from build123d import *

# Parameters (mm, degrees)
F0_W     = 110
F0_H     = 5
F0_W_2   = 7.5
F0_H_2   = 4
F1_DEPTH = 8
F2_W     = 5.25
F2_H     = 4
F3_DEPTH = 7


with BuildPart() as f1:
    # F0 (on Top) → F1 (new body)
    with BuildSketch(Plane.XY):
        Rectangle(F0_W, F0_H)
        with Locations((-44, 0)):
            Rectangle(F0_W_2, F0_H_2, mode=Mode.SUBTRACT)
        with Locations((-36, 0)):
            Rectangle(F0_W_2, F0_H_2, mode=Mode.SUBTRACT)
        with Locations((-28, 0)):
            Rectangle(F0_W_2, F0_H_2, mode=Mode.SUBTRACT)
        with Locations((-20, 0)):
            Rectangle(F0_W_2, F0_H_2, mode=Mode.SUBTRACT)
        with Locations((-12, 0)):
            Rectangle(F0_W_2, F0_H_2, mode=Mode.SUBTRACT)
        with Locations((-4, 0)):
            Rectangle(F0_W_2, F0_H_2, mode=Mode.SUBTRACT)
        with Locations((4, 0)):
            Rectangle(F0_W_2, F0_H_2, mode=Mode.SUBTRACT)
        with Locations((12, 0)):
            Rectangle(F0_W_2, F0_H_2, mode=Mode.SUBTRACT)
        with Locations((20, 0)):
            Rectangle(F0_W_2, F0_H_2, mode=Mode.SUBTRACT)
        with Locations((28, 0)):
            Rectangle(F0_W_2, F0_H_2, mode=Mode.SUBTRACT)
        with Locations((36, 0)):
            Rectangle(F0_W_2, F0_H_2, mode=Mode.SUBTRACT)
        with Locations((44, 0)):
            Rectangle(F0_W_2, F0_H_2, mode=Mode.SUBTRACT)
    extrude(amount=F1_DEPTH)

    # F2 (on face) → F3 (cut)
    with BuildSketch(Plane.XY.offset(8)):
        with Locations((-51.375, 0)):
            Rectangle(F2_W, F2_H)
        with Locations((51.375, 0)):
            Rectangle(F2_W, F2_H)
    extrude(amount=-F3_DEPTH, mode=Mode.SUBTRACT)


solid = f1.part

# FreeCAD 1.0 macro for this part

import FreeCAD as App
import Part
import Sketcher

doc = App.newDocument("Part")
body = doc.addObject("PartDesign::Body", "Body")

# Sketch on XY plane
sketch1 = body.newObject("Sketcher::SketchObject", "Sketch")
sketch1.AttachmentSupport = (doc.getObject("XY_Plane"), [""])
sketch1.MapMode = "FlatFace"
sketch1.addGeometry([
    Part.LineSegment(App.Vector(-55, 2.5, 0), App.Vector(-55, -2.5, 0)),  # 0
    Part.LineSegment(App.Vector(-55, -2.5, 0), App.Vector(55, -2.5, 0)),  # 1
    Part.LineSegment(App.Vector(55, -2.5, 0), App.Vector(55, 2.5, 0)),  # 2
    Part.LineSegment(App.Vector(55, 2.5, 0), App.Vector(-55, 2.5, 0)),  # 3
    Part.LineSegment(App.Vector(-40.25, -2, 0), App.Vector(-47.75, -2, 0)),  # 4
    Part.LineSegment(App.Vector(-47.75, -2, 0), App.Vector(-47.75, 2, 0)),  # 5
    Part.LineSegment(App.Vector(-47.75, 2, 0), App.Vector(-40.25, 2, 0)),  # 6
    Part.LineSegment(App.Vector(-40.25, 2, 0), App.Vector(-40.25, -2, 0)),  # 7
    Part.LineSegment(App.Vector(-32.25, -2, 0), App.Vector(-39.75, -2, 0)),  # 8
    Part.LineSegment(App.Vector(-39.75, -2, 0), App.Vector(-39.75, 2, 0)),  # 9
    Part.LineSegment(App.Vector(-39.75, 2, 0), App.Vector(-32.25, 2, 0)),  # 10
    Part.LineSegment(App.Vector(-32.25, 2, 0), App.Vector(-32.25, -2, 0)),  # 11
    Part.LineSegment(App.Vector(-24.25, -2, 0), App.Vector(-31.75, -2, 0)),  # 12
    Part.LineSegment(App.Vector(-31.75, -2, 0), App.Vector(-31.75, 2, 0)),  # 13
    Part.LineSegment(App.Vector(-31.75, 2, 0), App.Vector(-24.25, 2, 0)),  # 14
    Part.LineSegment(App.Vector(-24.25, 2, 0), App.Vector(-24.25, -2, 0)),  # 15
    Part.LineSegment(App.Vector(-16.25, -2, 0), App.Vector(-23.75, -2, 0)),  # 16
    Part.LineSegment(App.Vector(-23.75, -2, 0), App.Vector(-23.75, 2, 0)),  # 17
    Part.LineSegment(App.Vector(-23.75, 2, 0), App.Vector(-16.25, 2, 0)),  # 18
    Part.LineSegment(App.Vector(-16.25, 2, 0), App.Vector(-16.25, -2, 0)),  # 19
    Part.LineSegment(App.Vector(-8.25, -2, 0), App.Vector(-15.75, -2, 0)),  # 20
    Part.LineSegment(App.Vector(-15.75, -2, 0), App.Vector(-15.75, 2, 0)),  # 21
    Part.LineSegment(App.Vector(-15.75, 2, 0), App.Vector(-8.25, 2, 0)),  # 22
    Part.LineSegment(App.Vector(-8.25, 2, 0), App.Vector(-8.25, -2, 0)),  # 23
    Part.LineSegment(App.Vector(-0.25, -2, 0), App.Vector(-7.75, -2, 0)),  # 24
    Part.LineSegment(App.Vector(-7.75, -2, 0), App.Vector(-7.75, 2, 0)),  # 25
    Part.LineSegment(App.Vector(-7.75, 2, 0), App.Vector(-0.25, 2, 0)),  # 26
    Part.LineSegment(App.Vector(-0.25, 2, 0), App.Vector(-0.25, -2, 0)),  # 27
    Part.LineSegment(App.Vector(7.75, -2, 0), App.Vector(0.25, -2, 0)),  # 28
    Part.LineSegment(App.Vector(0.25, -2, 0), App.Vector(0.25, 2, 0)),  # 29
    Part.LineSegment(App.Vector(0.25, 2, 0), App.Vector(7.75, 2, 0)),  # 30
    Part.LineSegment(App.Vector(7.75, 2, 0), App.Vector(7.75, -2, 0)),  # 31
    Part.LineSegment(App.Vector(15.75, -2, 0), App.Vector(8.25, -2, 0)),  # 32
    Part.LineSegment(App.Vector(8.25, -2, 0), App.Vector(8.25, 2, 0)),  # 33
    Part.LineSegment(App.Vector(8.25, 2, 0), App.Vector(15.75, 2, 0)),  # 34
    Part.LineSegment(App.Vector(15.75, 2, 0), App.Vector(15.75, -2, 0)),  # 35
    Part.LineSegment(App.Vector(23.75, -2, 0), App.Vector(16.25, -2, 0)),  # 36
    Part.LineSegment(App.Vector(16.25, -2, 0), App.Vector(16.25, 2, 0)),  # 37
    Part.LineSegment(App.Vector(16.25, 2, 0), App.Vector(23.75, 2, 0)),  # 38
    Part.LineSegment(App.Vector(23.75, 2, 0), App.Vector(23.75, -2, 0)),  # 39
    Part.LineSegment(App.Vector(31.75, -2, 0), App.Vector(24.25, -2, 0)),  # 40
    Part.LineSegment(App.Vector(24.25, -2, 0), App.Vector(24.25, 2, 0)),  # 41
    Part.LineSegment(App.Vector(24.25, 2, 0), App.Vector(31.75, 2, 0)),  # 42
    Part.LineSegment(App.Vector(31.75, 2, 0), App.Vector(31.75, -2, 0)),  # 43
    Part.LineSegment(App.Vector(39.75, -2, 0), App.Vector(32.25, -2, 0)),  # 44
    Part.LineSegment(App.Vector(32.25, -2, 0), App.Vector(32.25, 2, 0)),  # 45
    Part.LineSegment(App.Vector(32.25, 2, 0), App.Vector(39.75, 2, 0)),  # 46
    Part.LineSegment(App.Vector(39.75, 2, 0), App.Vector(39.75, -2, 0)),  # 47
    Part.LineSegment(App.Vector(47.75, -2, 0), App.Vector(40.25, -2, 0)),  # 48
    Part.LineSegment(App.Vector(40.25, -2, 0), App.Vector(40.25, 2, 0)),  # 49
    Part.LineSegment(App.Vector(40.25, 2, 0), App.Vector(47.75, 2, 0)),  # 50
    Part.LineSegment(App.Vector(47.75, 2, 0), App.Vector(47.75, -2, 0)),  # 51
], False)
sketch1.addConstraint([
    Sketcher.Constraint("Coincident", 0, 2, 1, 1),
    Sketcher.Constraint("Coincident", 1, 2, 2, 1),
    Sketcher.Constraint("Coincident", 2, 2, 3, 1),
    Sketcher.Constraint("Coincident", 3, 2, 0, 1),
    Sketcher.Constraint("Coincident", 4, 2, 5, 1),
    Sketcher.Constraint("Coincident", 5, 2, 6, 1),
    Sketcher.Constraint("Coincident", 6, 2, 7, 1),
    Sketcher.Constraint("Coincident", 7, 2, 4, 1),
    Sketcher.Constraint("Coincident", 8, 2, 9, 1),
    Sketcher.Constraint("Coincident", 9, 2, 10, 1),
    Sketcher.Constraint("Coincident", 10, 2, 11, 1),
    Sketcher.Constraint("Coincident", 11, 2, 8, 1),
    Sketcher.Constraint("Coincident", 12, 2, 13, 1),
    Sketcher.Constraint("Coincident", 13, 2, 14, 1),
    Sketcher.Constraint("Coincident", 14, 2, 15, 1),
    Sketcher.Constraint("Coincident", 15, 2, 12, 1),
    Sketcher.Constraint("Coincident", 16, 2, 17, 1),
    Sketcher.Constraint("Coincident", 17, 2, 18, 1),
    Sketcher.Constraint("Coincident", 18, 2, 19, 1),
    Sketcher.Constraint("Coincident", 19, 2, 16, 1),
    Sketcher.Constraint("Coincident", 20, 2, 21, 1),
    Sketcher.Constraint("Coincident", 21, 2, 22, 1),
    Sketcher.Constraint("Coincident", 22, 2, 23, 1),
    Sketcher.Constraint("Coincident", 23, 2, 20, 1),
    Sketcher.Constraint("Coincident", 24, 2, 25, 1),
    Sketcher.Constraint("Coincident", 25, 2, 26, 1),
    Sketcher.Constraint("Coincident", 26, 2, 27, 1),
    Sketcher.Constraint("Coincident", 27, 2, 24, 1),
    Sketcher.Constraint("Coincident", 28, 2, 29, 1),
    Sketcher.Constraint("Coincident", 29, 2, 30, 1),
    Sketcher.Constraint("Coincident", 30, 2, 31, 1),
    Sketcher.Constraint("Coincident", 31, 2, 28, 1),
    Sketcher.Constraint("Coincident", 32, 2, 33, 1),
    Sketcher.Constraint("Coincident", 33, 2, 34, 1),
    Sketcher.Constraint("Coincident", 34, 2, 35, 1),
    Sketcher.Constraint("Coincident", 35, 2, 32, 1),
    Sketcher.Constraint("Coincident", 36, 2, 37, 1),
    Sketcher.Constraint("Coincident", 37, 2, 38, 1),
    Sketcher.Constraint("Coincident", 38, 2, 39, 1),
    Sketcher.Constraint("Coincident", 39, 2, 36, 1),
    Sketcher.Constraint("Coincident", 40, 2, 41, 1),
    Sketcher.Constraint("Coincident", 41, 2, 42, 1),
    Sketcher.Constraint("Coincident", 42, 2, 43, 1),
    Sketcher.Constraint("Coincident", 43, 2, 40, 1),
    Sketcher.Constraint("Coincident", 44, 2, 45, 1),
    Sketcher.Constraint("Coincident", 45, 2, 46, 1),
    Sketcher.Constraint("Coincident", 46, 2, 47, 1),
    Sketcher.Constraint("Coincident", 47, 2, 44, 1),
    Sketcher.Constraint("Coincident", 48, 2, 49, 1),
    Sketcher.Constraint("Coincident", 49, 2, 50, 1),
    Sketcher.Constraint("Coincident", 50, 2, 51, 1),
    Sketcher.Constraint("Coincident", 51, 2, 48, 1),
    Sketcher.Constraint("Vertical", 0),
    Sketcher.Constraint("Horizontal", 1),
    Sketcher.Constraint("Vertical", 2),
    Sketcher.Constraint("Horizontal", 3),
    Sketcher.Constraint("Horizontal", 4),
    Sketcher.Constraint("Vertical", 5),
    Sketcher.Constraint("Horizontal", 6),
    Sketcher.Constraint("Vertical", 7),
    Sketcher.Constraint("Horizontal", 8),
    Sketcher.Constraint("Vertical", 9),
    Sketcher.Constraint("Horizontal", 10),
    Sketcher.Constraint("Vertical", 11),
    Sketcher.Constraint("Horizontal", 12),
    Sketcher.Constraint("Vertical", 13),
    Sketcher.Constraint("Horizontal", 14),
    Sketcher.Constraint("Vertical", 15),
    Sketcher.Constraint("Horizontal", 16),
    Sketcher.Constraint("Vertical", 17),
    Sketcher.Constraint("Horizontal", 18),
    Sketcher.Constraint("Vertical", 19),
    Sketcher.Constraint("Horizontal", 20),
    Sketcher.Constraint("Vertical", 21),
    Sketcher.Constraint("Horizontal", 22),
    Sketcher.Constraint("Vertical", 23),
    Sketcher.Constraint("Horizontal", 24),
    Sketcher.Constraint("Vertical", 25),
    Sketcher.Constraint("Horizontal", 26),
    Sketcher.Constraint("Vertical", 27),
    Sketcher.Constraint("Horizontal", 28),
    Sketcher.Constraint("Vertical", 29),
    Sketcher.Constraint("Horizontal", 30),
    Sketcher.Constraint("Vertical", 31),
    Sketcher.Constraint("Horizontal", 32),
    Sketcher.Constraint("Vertical", 33),
    Sketcher.Constraint("Horizontal", 34),
    Sketcher.Constraint("Vertical", 35),
    Sketcher.Constraint("Horizontal", 36),
    Sketcher.Constraint("Vertical", 37),
    Sketcher.Constraint("Horizontal", 38),
    Sketcher.Constraint("Vertical", 39),
    Sketcher.Constraint("Horizontal", 40),
    Sketcher.Constraint("Vertical", 41),
    Sketcher.Constraint("Horizontal", 42),
    Sketcher.Constraint("Vertical", 43),
    Sketcher.Constraint("Horizontal", 44),
    Sketcher.Constraint("Vertical", 45),
    Sketcher.Constraint("Horizontal", 46),
    Sketcher.Constraint("Vertical", 47),
    Sketcher.Constraint("Horizontal", 48),
    Sketcher.Constraint("Vertical", 49),
    Sketcher.Constraint("Horizontal", 50),
    Sketcher.Constraint("Vertical", 51),
    Sketcher.Constraint("Symmetric", 0, 2, 2, 2, -1, 1),
    Sketcher.Constraint("Symmetric", 26, 2, 28, 2, -1, 1),
    Sketcher.Constraint("Symmetric", 24, 2, 30, 2, -1, 1),
    Sketcher.Constraint("Symmetric", 22, 2, 32, 2, -1, 1),
    Sketcher.Constraint("Symmetric", 20, 2, 34, 2, -1, 1),
    Sketcher.Constraint("Symmetric", 18, 2, 36, 2, -1, 1),
    Sketcher.Constraint("Symmetric", 16, 2, 38, 2, -1, 1),
    Sketcher.Constraint("Symmetric", 14, 2, 40, 2, -1, 1),
    Sketcher.Constraint("Symmetric", 12, 2, 42, 2, -1, 1),
    Sketcher.Constraint("Symmetric", 10, 2, 44, 2, -1, 1),
    Sketcher.Constraint("Symmetric", 8, 2, 46, 2, -1, 1),
    Sketcher.Constraint("Symmetric", 6, 2, 48, 2, -1, 1),
    Sketcher.Constraint("Symmetric", 4, 2, 50, 2, -1, 1),
    Sketcher.Constraint("Horizontal", 7, 2, 8, 2),
    Sketcher.Constraint("Horizontal", 6, 2, 9, 2),
    Sketcher.Constraint("Horizontal", 11, 2, 12, 2),
    Sketcher.Constraint("Horizontal", 10, 2, 13, 2),
    Sketcher.Constraint("Horizontal", 15, 2, 16, 2),
    Sketcher.Constraint("Horizontal", 14, 2, 17, 2),
    Sketcher.Constraint("Horizontal", 19, 2, 20, 2),
    Sketcher.Constraint("Horizontal", 18, 2, 21, 2),
    Sketcher.Constraint("Horizontal", 23, 2, 24, 2),
    Sketcher.Constraint("Horizontal", 22, 2, 25, 2),
    Sketcher.Constraint("Horizontal", 27, 2, 28, 2),
    Sketcher.Constraint("Equal", 6, 8),
    Sketcher.Constraint("Equal", 10, 12),
    Sketcher.Constraint("Equal", 14, 16),
    Sketcher.Constraint("Equal", 18, 20),
    Sketcher.Constraint("Equal", 22, 24),
    Sketcher.Constraint("DistanceX", 1, 1, 1, 2, 110.0),
    Sketcher.Constraint("DistanceY", 0, 2, 0, 1, 5.0),
    Sketcher.Constraint("DistanceY", 5, 1, 5, 2, 4.0),
    Sketcher.Constraint("DistanceX", 4, 2, 4, 1, 7.5),
    Sketcher.Constraint("DistanceX", 4, 2, 8, 2, 8.0),
    Sketcher.Constraint("DistanceX", 8, 2, 12, 2, 8.0),
    Sketcher.Constraint("DistanceX", 12, 2, 16, 2, 8.0),
    Sketcher.Constraint("DistanceX", 16, 2, 20, 2, 8.0),
    Sketcher.Constraint("DistanceX", 20, 2, 24, 2, 8.0),
    Sketcher.Constraint("DistanceX", 24, 2, 28, 2, 8.0),
])
pad1 = body.newObject("PartDesign::Pad", "Pad")
pad1.Profile = sketch1
pad1.Length = 8

# Sketch on XY plane
sketch2 = body.newObject("Sketcher::SketchObject", "Sketch001")
sketch2.AttachmentSupport = (doc.getObject("XY_Plane"), [""])
sketch2.MapMode = "FlatFace"
sketch2.AttachmentOffset = App.Placement(App.Vector(0, 0, 8), App.Rotation())
sketch2.addGeometry([
    Part.LineSegment(App.Vector(-54, 2, 0), App.Vector(-54, -2, 0)),  # 0
    Part.LineSegment(App.Vector(-54, -2, 0), App.Vector(-48.75, -2, 0)),  # 1
    Part.LineSegment(App.Vector(-48.75, -2, 0), App.Vector(-48.75, 2, 0)),  # 2
    Part.LineSegment(App.Vector(-48.75, 2, 0), App.Vector(-54, 2, 0)),  # 3
    Part.LineSegment(App.Vector(48.75, 2, 0), App.Vector(48.75, -2, 0)),  # 4
    Part.LineSegment(App.Vector(48.75, -2, 0), App.Vector(54, -2, 0)),  # 5
    Part.LineSegment(App.Vector(54, -2, 0), App.Vector(54, 2, 0)),  # 6
    Part.LineSegment(App.Vector(54, 2, 0), App.Vector(48.75, 2, 0)),  # 7
], False)
sketch2.addConstraint([
    Sketcher.Constraint("Coincident", 0, 2, 1, 1),
    Sketcher.Constraint("Coincident", 1, 2, 2, 1),
    Sketcher.Constraint("Coincident", 2, 2, 3, 1),
    Sketcher.Constraint("Coincident", 3, 2, 0, 1),
    Sketcher.Constraint("Coincident", 4, 2, 5, 1),
    Sketcher.Constraint("Coincident", 5, 2, 6, 1),
    Sketcher.Constraint("Coincident", 6, 2, 7, 1),
    Sketcher.Constraint("Coincident", 7, 2, 4, 1),
    Sketcher.Constraint("Vertical", 0),
    Sketcher.Constraint("Horizontal", 1),
    Sketcher.Constraint("Vertical", 2),
    Sketcher.Constraint("Horizontal", 3),
    Sketcher.Constraint("Vertical", 4),
    Sketcher.Constraint("Horizontal", 5),
    Sketcher.Constraint("Vertical", 6),
    Sketcher.Constraint("Horizontal", 7),
    Sketcher.Constraint("Symmetric", 2, 2, 4, 2, -1, 1),
    Sketcher.Constraint("Symmetric", 0, 2, 6, 2, -1, 1),
    Sketcher.Constraint("Horizontal", 1, 2, 4, 2),
    Sketcher.Constraint("DistanceY", 0, 2, 0, 1, 4.0),
    Sketcher.Constraint("DistanceX", 0, 2, -1, 1, 54.0),
    Sketcher.Constraint("DistanceX", 1, 1, 1, 2, 5.25),
])
pocket1 = body.newObject("PartDesign::Pocket", "Pocket")
pocket1.Profile = sketch2
pocket1.Length = 7

doc.recompute()
